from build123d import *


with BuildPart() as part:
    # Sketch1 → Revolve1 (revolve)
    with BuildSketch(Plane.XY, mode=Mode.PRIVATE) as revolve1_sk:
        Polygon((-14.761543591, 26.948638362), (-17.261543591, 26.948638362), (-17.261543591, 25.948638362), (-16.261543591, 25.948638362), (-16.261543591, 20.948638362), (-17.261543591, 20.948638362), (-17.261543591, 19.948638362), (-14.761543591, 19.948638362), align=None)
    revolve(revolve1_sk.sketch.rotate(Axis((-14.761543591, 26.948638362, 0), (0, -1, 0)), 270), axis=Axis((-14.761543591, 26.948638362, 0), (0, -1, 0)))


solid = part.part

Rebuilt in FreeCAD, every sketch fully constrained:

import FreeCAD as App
import Part
import Sketcher

V = App.Vector
Q = App.Units.Quantity


def add_polygon(sketch, points):
    """Adds a closed chain of lines whose ends are joined by coincident constraints."""
    first, n = sketch.GeometryCount, len(points)
    for a, b in zip(points, points[1:] + points[:1]):
        sketch.addGeometry(Part.LineSegment(App.Vector(*a, 0), App.Vector(*b, 0)), False)
    for i in range(n):
        sketch.addConstraint(Sketcher.Constraint("Coincident", first + i, 2, first + (i + 1) % n, 1))

doc = App.newDocument("Part")
body = doc.addObject("PartDesign::Body", "Body")

# Sketch on XY plane
sketch1 = doc.addObject("Sketcher::SketchObject", "Sketch")
body.addObject(sketch1)
sketch1.AttachmentSupport = (doc.XY_Plane, [""])
sketch1.MapMode = "FlatFace"
add_polygon(sketch1, [(-14.761544, 26.948638), (-17.261544, 26.948638), (-17.261544, 25.948638), (-16.261544, 25.948638), (-16.261544, 20.948638), (-17.261544, 20.948638), (-17.261544, 19.948638), (-14.761544, 19.948638)])  # lines 0-7
sketch1.addGeometry(Part.LineSegment(V(-14.761544, 26.948638, 0), V(-14.761544, 19.948638, 0)), True)  # axis
sketch1.addConstraint(Sketcher.Constraint("Horizontal", 0))
sketch1.addConstraint(Sketcher.Constraint("Vertical", 1))
sketch1.addConstraint(Sketcher.Constraint("Horizontal", 2))
sketch1.addConstraint(Sketcher.Constraint("Vertical", 3))
sketch1.addConstraint(Sketcher.Constraint("Horizontal", 4))
sketch1.addConstraint(Sketcher.Constraint("Vertical", 5))
sketch1.addConstraint(Sketcher.Constraint("Horizontal", 6))
sketch1.addConstraint(Sketcher.Constraint("Vertical", 7))
sketch1.addConstraint(Sketcher.Constraint("Vertical", 8))
sketch1.addConstraint(Sketcher.Constraint("Coincident", 8, 1, 7, 2))
sketch1.addConstraint(Sketcher.Constraint("Horizontal", 5, 2, 8, 2))
sketch1.addConstraint(Sketcher.Constraint("Vertical", 1, 2, 4, 2))
sketch1.addConstraint(Sketcher.Constraint("Equal", 4, 1))
sketch1.addConstraint(Sketcher.Constraint("Equal", 1, 5))
sketch1.addConstraint(Sketcher.Constraint("DistanceX", 2, 1, 2, 2, Q("1 mm")))
sketch1.addConstraint(Sketcher.Constraint("DistanceY", 3, 2, 3, 1, Q("5 mm")))
sketch1.addConstraint(Sketcher.Constraint("DistanceX", 0, 2, 0, 1, Q("2.5 mm")))
sketch1.addConstraint(Sketcher.Constraint("DistanceY", -1, 1, 0, 2, Q("26.948638 mm")))
sketch1.addConstraint(Sketcher.Constraint("DistanceX", 0, 2, -1, 1, Q("17.261544 mm")))
revolution = doc.addObject("PartDesign::Revolution", "Revolution")
body.addObject(revolution)
revolution.Profile = sketch1
revolution.ReferenceAxis = (sketch1, ["Axis0"])
revolution.Angle = 360

doc.recompute()
